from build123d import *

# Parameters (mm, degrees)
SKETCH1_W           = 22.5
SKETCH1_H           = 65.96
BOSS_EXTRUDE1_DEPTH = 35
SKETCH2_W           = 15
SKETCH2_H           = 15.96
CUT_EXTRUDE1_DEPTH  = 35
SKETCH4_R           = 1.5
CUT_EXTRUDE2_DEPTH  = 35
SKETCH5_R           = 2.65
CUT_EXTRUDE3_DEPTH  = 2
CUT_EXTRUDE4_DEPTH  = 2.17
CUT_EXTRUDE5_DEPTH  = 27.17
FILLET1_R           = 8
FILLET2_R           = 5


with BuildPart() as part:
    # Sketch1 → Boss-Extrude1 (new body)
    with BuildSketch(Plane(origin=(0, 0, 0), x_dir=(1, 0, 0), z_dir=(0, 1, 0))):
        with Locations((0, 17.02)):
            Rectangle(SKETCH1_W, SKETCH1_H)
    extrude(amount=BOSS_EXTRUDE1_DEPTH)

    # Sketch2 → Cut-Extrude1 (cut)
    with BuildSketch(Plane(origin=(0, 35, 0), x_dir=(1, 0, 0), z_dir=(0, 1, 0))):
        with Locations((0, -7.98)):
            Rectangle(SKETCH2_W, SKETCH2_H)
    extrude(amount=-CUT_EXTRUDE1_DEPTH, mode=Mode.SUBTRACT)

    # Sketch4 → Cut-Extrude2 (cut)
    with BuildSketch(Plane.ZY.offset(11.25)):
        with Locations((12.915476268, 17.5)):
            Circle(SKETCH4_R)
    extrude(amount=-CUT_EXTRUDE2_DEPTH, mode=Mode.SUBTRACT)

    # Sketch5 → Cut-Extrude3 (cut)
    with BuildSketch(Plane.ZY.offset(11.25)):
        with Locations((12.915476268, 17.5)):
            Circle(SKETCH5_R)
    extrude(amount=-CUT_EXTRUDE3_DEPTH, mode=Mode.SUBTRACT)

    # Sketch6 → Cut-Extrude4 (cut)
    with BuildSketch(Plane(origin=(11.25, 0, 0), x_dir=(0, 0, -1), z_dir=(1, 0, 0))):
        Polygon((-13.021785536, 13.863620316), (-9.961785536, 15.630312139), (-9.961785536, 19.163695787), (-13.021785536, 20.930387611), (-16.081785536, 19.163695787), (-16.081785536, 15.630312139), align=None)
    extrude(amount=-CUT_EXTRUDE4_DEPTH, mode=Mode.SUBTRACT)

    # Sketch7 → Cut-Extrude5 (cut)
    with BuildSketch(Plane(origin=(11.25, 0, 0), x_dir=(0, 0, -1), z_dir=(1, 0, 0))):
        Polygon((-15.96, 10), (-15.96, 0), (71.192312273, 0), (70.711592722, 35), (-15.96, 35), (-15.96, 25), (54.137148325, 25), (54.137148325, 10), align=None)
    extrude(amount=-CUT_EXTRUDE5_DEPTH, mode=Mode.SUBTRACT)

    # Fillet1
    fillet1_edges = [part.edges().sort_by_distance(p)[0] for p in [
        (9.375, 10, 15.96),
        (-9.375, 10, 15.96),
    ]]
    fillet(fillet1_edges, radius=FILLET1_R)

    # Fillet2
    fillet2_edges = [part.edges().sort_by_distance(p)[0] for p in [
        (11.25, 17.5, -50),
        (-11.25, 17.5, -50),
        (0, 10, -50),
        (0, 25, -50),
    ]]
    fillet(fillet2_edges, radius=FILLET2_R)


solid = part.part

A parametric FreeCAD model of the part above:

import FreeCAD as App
import Part
import Sketcher
from FreeCAD import Vector
Q = App.Units.Quantity


def edges_at(feature, points):
    """Names of the edges that pass closest to the given points."""
    edges = feature.Shape.Edges
    near = lambda p: min(range(len(edges)), key=lambda i: edges[i].distToShape(Part.Vertex(*p))[0])
    return sorted({f"Edge{near(p) + 1}" for p in points})

doc = App.newDocument("Part")
body = doc.addObject("PartDesign::Body", "Body")

# Sketch on XZ plane
sketch1 = body.newObject("Sketcher::SketchObject", "Sketch")
sketch1.AttachmentSupport = (doc.getObject("XZ_Plane"), [""])
sketch1.MapMode = "FlatFace"
sketch1.addGeometry(Part.LineSegment(Vector(-11.25, -50, 0), Vector(-11.25, 15.96, 0)), False)
sketch1.addGeometry(Part.LineSegment(Vector(-11.25, 15.96, 0), Vector(11.25, 15.96, 0)), False)
sketch1.addGeometry(Part.LineSegment(Vector(11.25, 15.96, 0), Vector(11.25, -50, 0)), False)
sketch1.addGeometry(Part.LineSegment(Vector(11.25, -50, 0), Vector(-11.25, -50, 0)), False)
sketch1.addConstraint(Sketcher.Constraint("Coincident", 0, 2, 1, 1))
sketch1.addConstraint(Sketcher.Constraint("Coincident", 1, 2, 2, 1))
sketch1.addConstraint(Sketcher.Constraint("Coincident", 2, 2, 3, 1))
sketch1.addConstraint(Sketcher.Constraint("Coincident", 3, 2, 0, 1))
sketch1.addConstraint(Sketcher.Constraint("Vertical", 0))
sketch1.addConstraint(Sketcher.Constraint("Horizontal", 1))
sketch1.addConstraint(Sketcher.Constraint("Vertical", 2))
sketch1.addConstraint(Sketcher.Constraint("Horizontal", 3))
sketch1.addConstraint(Sketcher.Constraint("DistanceX", 1, 1, 1, 2, Q("22.5 mm")))
sketch1.addConstraint(Sketcher.Constraint("DistanceY", 2, 2, -1, 1, Q("50 mm")))
sketch1.addConstraint(Sketcher.Constraint("DistanceY", 0, 1, 0, 2, Q("65.96 mm")))
sketch1.addConstraint(Sketcher.Constraint("DistanceX", 0, 2, -1, 1, Q("11.25 mm")))
pad1 = body.newObject("PartDesign::Pad", "Pad")
pad1.Profile = sketch1
pad1.Length = 35
pad1.Reversed = True

# Sketch on XZ plane
sketch2 = body.newObject("Sketcher::SketchObject", "Sketch001")
sketch2.AttachmentSupport = (doc.getObject("XZ_Plane"), [""])
sketch2.MapMode = "FlatFace"
sketch2.AttachmentOffset = App.Placement(Vector(0, 0, -35), App.Rotation())
sketch2.addGeometry(Part.LineSegment(Vector(-7.5, 0, 0), Vector(-7.5, 15.96, 0)), False)
sketch2.addGeometry(Part.LineSegment(Vector(-7.5, 15.96, 0), Vector(7.5, 15.96, 0)), False)
sketch2.addGeometry(Part.LineSegment(Vector(7.5, 15.96, 0), Vector(7.5, 0, 0)), False)
sketch2.addGeometry(Part.LineSegment(Vector(7.5, 0, 0), Vector(-7.5, 0, 0)), False)
sketch2.addConstraint(Sketcher.Constraint("Coincident", 0, 2, 1, 1))
sketch2.addConstraint(Sketcher.Constraint("Coincident", 1, 2, 2, 1))
sketch2.addConstraint(Sketcher.Constraint("Coincident", 2, 2, 3, 1))
sketch2.addConstraint(Sketcher.Constraint("Coincident", 3, 2, 0, 1))
sketch2.addConstraint(Sketcher.Constraint("Vertical", 0))
sketch2.addConstraint(Sketcher.Constraint("Horizontal", 1))
sketch2.addConstraint(Sketcher.Constraint("Vertical", 2))
sketch2.addConstraint(Sketcher.Constraint("Horizontal", 3))
sketch2.addConstraint(Sketcher.Constraint("Symmetric", 2, 2, 3, 2, -1, 1))
sketch2.addConstraint(Sketcher.Constraint("DistanceX", 1, 1, 1, 2, Q("15 mm")))
sketch2.addConstraint(Sketcher.Constraint("DistanceY", 0, 1, 0, 2, Q("15.96 mm")))
pocket1 = body.newObject("PartDesign::Pocket", "Pocket")
pocket1.Profile = sketch2
pocket1.Length = 35
pocket1.Reversed = True

# Sketch on YZ plane
sketch3 = body.newObject("Sketcher::SketchObject", "Sketch002")
sketch3.AttachmentSupport = (doc.getObject("YZ_Plane"), [""])
sketch3.MapMode = "FlatFace"
sketch3.AttachmentOffset = App.Placement(Vector(0, 0, -11.25), App.Rotation())
sketch3.addGeometry(Part.Circle(Vector(17.5, 12.915476, 0), Vector(0, 0, 1), 1.5), False)
sketch3.addConstraint(Sketcher.Constraint("Diameter", 0, Q("3 mm")))
sketch3.addConstraint(Sketcher.Constraint("DistanceX", -1, 1, 0, 3, Q("17.5 mm")))
sketch3.addConstraint(Sketcher.Constraint("DistanceY", -1, 1, 0, 3, Q("12.915476 mm")))
pocket2 = body.newObject("PartDesign::Pocket", "Pocket001")
pocket2.Profile = sketch3
pocket2.Length = 35
pocket2.Reversed = True

# Sketch on YZ plane
sketch4 = body.newObject("Sketcher::SketchObject", "Sketch003")
sketch4.AttachmentSupport = (doc.getObject("YZ_Plane"), [""])
sketch4.MapMode = "FlatFace"
sketch4.AttachmentOffset = App.Placement(Vector(0, 0, -11.25), App.Rotation())
sketch4.addGeometry(Part.Circle(Vector(17.5, 12.915476, 0), Vector(0, 0, 1), 2.65), False)
sketch4.addConstraint(Sketcher.Constraint("Diameter", 0, Q("5.3 mm")))
sketch4.addConstraint(Sketcher.Constraint("DistanceX", -1, 1, 0, 3, Q("17.5 mm")))
sketch4.addConstraint(Sketcher.Constraint("DistanceY", -1, 1, 0, 3, Q("12.915476 mm")))
pocket3 = body.newObject("PartDesign::Pocket", "Pocket002")
pocket3.Profile = sketch4
pocket3.Length = 2
pocket3.Reversed = True

# Sketch on YZ plane
sketch5 = body.newObject("Sketcher::SketchObject", "Sketch004")
sketch5.AttachmentSupport = (doc.getObject("YZ_Plane"), [""])
sketch5.MapMode = "FlatFace"
sketch5.AttachmentOffset = App.Placement(Vector(0, 0, 11.25), App.Rotation())
sketch5.addGeometry(Part.LineSegment(Vector(13.86362, 13.021786, 0), Vector(15.630312, 9.961786, 0)), False)
sketch5.addGeometry(Part.LineSegment(Vector(15.630312, 9.961786, 0), Vector(19.163696, 9.961786, 0)), False)
sketch5.addGeometry(Part.LineSegment(Vector(19.163696, 9.961786, 0), Vector(20.930388, 13.021786, 0)), False)
sketch5.addGeometry(Part.LineSegment(Vector(20.930388, 13.021786, 0), Vector(19.163696, 16.081786, 0)), False)
sketch5.addGeometry(Part.LineSegment(Vector(19.163696, 16.081786, 0), Vector(15.630312, 16.081786, 0)), False)
sketch5.addGeometry(Part.LineSegment(Vector(15.630312, 16.081786, 0), Vector(13.86362, 13.021786, 0)), False)
sketch5.addConstraint(Sketcher.Constraint("Coincident", 0, 2, 1, 1))
sketch5.addConstraint(Sketcher.Constraint("Coincident", 1, 2, 2, 1))
sketch5.addConstraint(Sketcher.Constraint("Coincident", 2, 2, 3, 1))
sketch5.addConstraint(Sketcher.Constraint("Coincident", 3, 2, 4, 1))
sketch5.addConstraint(Sketcher.Constraint("Coincident", 4, 2, 5, 1))
sketch5.addConstraint(Sketcher.Constraint("Coincident", 5, 2, 0, 1))
sketch5.addConstraint(Sketcher.Constraint("Horizontal", 1))
sketch5.addConstraint(Sketcher.Constraint("Horizontal", 4))
sketch5.addConstraint(Sketcher.Constraint("Parallel", 0, 3))
sketch5.addConstraint(Sketcher.Constraint("Parallel", 2, 5))
sketch5.addConstraint(Sketcher.Constraint("Horizontal", 2, 2, 5, 2))
sketch5.addConstraint(Sketcher.Constraint("Vertical", 1, 2, 3, 2))
sketch5.addConstraint(Sketcher.Constraint("Vertical", 0, 2, 4, 2))
sketch5.addConstraint(Sketcher.Constraint("Angle", 0, Q("-60 deg")))
sketch5.addConstraint(Sketcher.Constraint("DistanceY", 1, 2, 2, 2, Q("3.06 mm")))
sketch5.addConstraint(Sketcher.Constraint("DistanceX", 1, 1, 1, 2, Q("3.533384 mm")))
sketch5.addConstraint(Sketcher.Constraint("DistanceX", -1, 1, 5, 2, Q("13.86362 mm")))
sketch5.addConstraint(Sketcher.Constraint("DistanceY", -1, 1, 0, 2, Q("9.961786 mm")))
pocket4 = body.newObject("PartDesign::Pocket", "Pocket003")
pocket4.Profile = sketch5
pocket4.Length = 2.17

# Sketch on YZ plane
sketch6 = body.newObject("Sketcher::SketchObject", "Sketch005")
sketch6.AttachmentSupport = (doc.getObject("YZ_Plane"), [""])
sketch6.MapMode = "FlatFace"
sketch6.AttachmentOffset = App.Placement(Vector(0, 0, 11.25), App.Rotation())
sketch6.addGeometry(Part.LineSegment(Vector(10, 15.96, 0), Vector(0, 15.96, 0)), False)
sketch6.addGeometry(Part.LineSegment(Vector(0, 15.96, 0), Vector(0, -71.192312, 0)), False)
sketch6.addGeometry(Part.LineSegment(Vector(0, -71.192312, 0), Vector(35, -70.711593, 0)), False)
sketch6.addGeometry(Part.LineSegment(Vector(35, -70.711593, 0), Vector(35, 15.96, 0)), False)
sketch6.addGeometry(Part.LineSegment(Vector(35, 15.96, 0), Vector(25, 15.96, 0)), False)
sketch6.addGeometry(Part.LineSegment(Vector(25, 15.96, 0), Vector(25, -54.137148, 0)), False)
sketch6.addGeometry(Part.LineSegment(Vector(25, -54.137148, 0), Vector(10, -54.137148, 0)), False)
sketch6.addGeometry(Part.LineSegment(Vector(10, -54.137148, 0), Vector(10, 15.96, 0)), False)
sketch6.addConstraint(Sketcher.Constraint("Coincident", 0, 2, 1, 1))
sketch6.addConstraint(Sketcher.Constraint("Coincident", 1, 2, 2, 1))
sketch6.addConstraint(Sketcher.Constraint("Coincident", 2, 2, 3, 1))
sketch6.addConstraint(Sketcher.Constraint("Coincident", 3, 2, 4, 1))
sketch6.addConstraint(Sketcher.Constraint("Coincident", 4, 2, 5, 1))
sketch6.addConstraint(Sketcher.Constraint("Coincident", 5, 2, 6, 1))
sketch6.addConstraint(Sketcher.Constraint("Coincident", 6, 2, 7, 1))
sketch6.addConstraint(Sketcher.Constraint("Coincident", 7, 2, 0, 1))
sketch6.addConstraint(Sketcher.Constraint("Horizontal", 0))
sketch6.addConstraint(Sketcher.Constraint("Vertical", 1))
sketch6.addConstraint(Sketcher.Constraint("Vertical", 3))
sketch6.addConstraint(Sketcher.Constraint("Horizontal", 4))
sketch6.addConstraint(Sketcher.Constraint("Vertical", 5))
sketch6.addConstraint(Sketcher.Constraint("Horizontal", 6))
sketch6.addConstraint(Sketcher.Constraint("Vertical", 7))
sketch6.addConstraint(Sketcher.Constraint("PointOnObject", 0, 2, -2))
sketch6.addConstraint(Sketcher.Constraint("Horizontal", 0, 2, 3, 2))
sketch6.addConstraint(Sketcher.Constraint("Equal", 0, 4))
sketch6.addConstraint(Sketcher.Constraint("DistanceX", 0, 2, 0, 1, Q("10 mm")))
sketch6.addConstraint(Sketcher.Constraint("DistanceX", 6, 2, 6, 1, Q("15 mm")))
sketch6.addConstraint(Sketcher.Constraint("DistanceY", -1, 1, 0, 2, Q("15.96 mm")))
sketch6.addConstraint(Sketcher.Constraint("Distance", 2, Q("35.003301 mm")))
sketch6.addConstraint(Sketcher.Constraint("DistanceY", 5, 2, 5, 1, Q("70.097148 mm")))
sketch6.addConstraint(Sketcher.Constraint("DistanceY", 1, 2, 1, 1, Q("87.152312 mm")))
pocket5 = body.newObject("PartDesign::Pocket", "Pocket004")
pocket5.Profile = sketch6
pocket5.Length = 27.17
doc.recompute()

fillet = body.newObject("PartDesign::Fillet", "Fillet")
fillet.Base = (pocket5, edges_at(pocket5, [(9.375, 10, 15.96), (-9.375, 10, 15.96)]))
fillet.Radius = 8
doc.recompute()

fillet2 = body.newObject("PartDesign::Fillet", "Fillet001")
fillet2.Base = (fillet, edges_at(fillet, [
    (11.25, 17.5, -50),
    (-11.25, 17.5, -50),
    (0, 10, -50),
    (0, 25, -50),
]))
fillet2.Radius = 5

doc.recompute()
